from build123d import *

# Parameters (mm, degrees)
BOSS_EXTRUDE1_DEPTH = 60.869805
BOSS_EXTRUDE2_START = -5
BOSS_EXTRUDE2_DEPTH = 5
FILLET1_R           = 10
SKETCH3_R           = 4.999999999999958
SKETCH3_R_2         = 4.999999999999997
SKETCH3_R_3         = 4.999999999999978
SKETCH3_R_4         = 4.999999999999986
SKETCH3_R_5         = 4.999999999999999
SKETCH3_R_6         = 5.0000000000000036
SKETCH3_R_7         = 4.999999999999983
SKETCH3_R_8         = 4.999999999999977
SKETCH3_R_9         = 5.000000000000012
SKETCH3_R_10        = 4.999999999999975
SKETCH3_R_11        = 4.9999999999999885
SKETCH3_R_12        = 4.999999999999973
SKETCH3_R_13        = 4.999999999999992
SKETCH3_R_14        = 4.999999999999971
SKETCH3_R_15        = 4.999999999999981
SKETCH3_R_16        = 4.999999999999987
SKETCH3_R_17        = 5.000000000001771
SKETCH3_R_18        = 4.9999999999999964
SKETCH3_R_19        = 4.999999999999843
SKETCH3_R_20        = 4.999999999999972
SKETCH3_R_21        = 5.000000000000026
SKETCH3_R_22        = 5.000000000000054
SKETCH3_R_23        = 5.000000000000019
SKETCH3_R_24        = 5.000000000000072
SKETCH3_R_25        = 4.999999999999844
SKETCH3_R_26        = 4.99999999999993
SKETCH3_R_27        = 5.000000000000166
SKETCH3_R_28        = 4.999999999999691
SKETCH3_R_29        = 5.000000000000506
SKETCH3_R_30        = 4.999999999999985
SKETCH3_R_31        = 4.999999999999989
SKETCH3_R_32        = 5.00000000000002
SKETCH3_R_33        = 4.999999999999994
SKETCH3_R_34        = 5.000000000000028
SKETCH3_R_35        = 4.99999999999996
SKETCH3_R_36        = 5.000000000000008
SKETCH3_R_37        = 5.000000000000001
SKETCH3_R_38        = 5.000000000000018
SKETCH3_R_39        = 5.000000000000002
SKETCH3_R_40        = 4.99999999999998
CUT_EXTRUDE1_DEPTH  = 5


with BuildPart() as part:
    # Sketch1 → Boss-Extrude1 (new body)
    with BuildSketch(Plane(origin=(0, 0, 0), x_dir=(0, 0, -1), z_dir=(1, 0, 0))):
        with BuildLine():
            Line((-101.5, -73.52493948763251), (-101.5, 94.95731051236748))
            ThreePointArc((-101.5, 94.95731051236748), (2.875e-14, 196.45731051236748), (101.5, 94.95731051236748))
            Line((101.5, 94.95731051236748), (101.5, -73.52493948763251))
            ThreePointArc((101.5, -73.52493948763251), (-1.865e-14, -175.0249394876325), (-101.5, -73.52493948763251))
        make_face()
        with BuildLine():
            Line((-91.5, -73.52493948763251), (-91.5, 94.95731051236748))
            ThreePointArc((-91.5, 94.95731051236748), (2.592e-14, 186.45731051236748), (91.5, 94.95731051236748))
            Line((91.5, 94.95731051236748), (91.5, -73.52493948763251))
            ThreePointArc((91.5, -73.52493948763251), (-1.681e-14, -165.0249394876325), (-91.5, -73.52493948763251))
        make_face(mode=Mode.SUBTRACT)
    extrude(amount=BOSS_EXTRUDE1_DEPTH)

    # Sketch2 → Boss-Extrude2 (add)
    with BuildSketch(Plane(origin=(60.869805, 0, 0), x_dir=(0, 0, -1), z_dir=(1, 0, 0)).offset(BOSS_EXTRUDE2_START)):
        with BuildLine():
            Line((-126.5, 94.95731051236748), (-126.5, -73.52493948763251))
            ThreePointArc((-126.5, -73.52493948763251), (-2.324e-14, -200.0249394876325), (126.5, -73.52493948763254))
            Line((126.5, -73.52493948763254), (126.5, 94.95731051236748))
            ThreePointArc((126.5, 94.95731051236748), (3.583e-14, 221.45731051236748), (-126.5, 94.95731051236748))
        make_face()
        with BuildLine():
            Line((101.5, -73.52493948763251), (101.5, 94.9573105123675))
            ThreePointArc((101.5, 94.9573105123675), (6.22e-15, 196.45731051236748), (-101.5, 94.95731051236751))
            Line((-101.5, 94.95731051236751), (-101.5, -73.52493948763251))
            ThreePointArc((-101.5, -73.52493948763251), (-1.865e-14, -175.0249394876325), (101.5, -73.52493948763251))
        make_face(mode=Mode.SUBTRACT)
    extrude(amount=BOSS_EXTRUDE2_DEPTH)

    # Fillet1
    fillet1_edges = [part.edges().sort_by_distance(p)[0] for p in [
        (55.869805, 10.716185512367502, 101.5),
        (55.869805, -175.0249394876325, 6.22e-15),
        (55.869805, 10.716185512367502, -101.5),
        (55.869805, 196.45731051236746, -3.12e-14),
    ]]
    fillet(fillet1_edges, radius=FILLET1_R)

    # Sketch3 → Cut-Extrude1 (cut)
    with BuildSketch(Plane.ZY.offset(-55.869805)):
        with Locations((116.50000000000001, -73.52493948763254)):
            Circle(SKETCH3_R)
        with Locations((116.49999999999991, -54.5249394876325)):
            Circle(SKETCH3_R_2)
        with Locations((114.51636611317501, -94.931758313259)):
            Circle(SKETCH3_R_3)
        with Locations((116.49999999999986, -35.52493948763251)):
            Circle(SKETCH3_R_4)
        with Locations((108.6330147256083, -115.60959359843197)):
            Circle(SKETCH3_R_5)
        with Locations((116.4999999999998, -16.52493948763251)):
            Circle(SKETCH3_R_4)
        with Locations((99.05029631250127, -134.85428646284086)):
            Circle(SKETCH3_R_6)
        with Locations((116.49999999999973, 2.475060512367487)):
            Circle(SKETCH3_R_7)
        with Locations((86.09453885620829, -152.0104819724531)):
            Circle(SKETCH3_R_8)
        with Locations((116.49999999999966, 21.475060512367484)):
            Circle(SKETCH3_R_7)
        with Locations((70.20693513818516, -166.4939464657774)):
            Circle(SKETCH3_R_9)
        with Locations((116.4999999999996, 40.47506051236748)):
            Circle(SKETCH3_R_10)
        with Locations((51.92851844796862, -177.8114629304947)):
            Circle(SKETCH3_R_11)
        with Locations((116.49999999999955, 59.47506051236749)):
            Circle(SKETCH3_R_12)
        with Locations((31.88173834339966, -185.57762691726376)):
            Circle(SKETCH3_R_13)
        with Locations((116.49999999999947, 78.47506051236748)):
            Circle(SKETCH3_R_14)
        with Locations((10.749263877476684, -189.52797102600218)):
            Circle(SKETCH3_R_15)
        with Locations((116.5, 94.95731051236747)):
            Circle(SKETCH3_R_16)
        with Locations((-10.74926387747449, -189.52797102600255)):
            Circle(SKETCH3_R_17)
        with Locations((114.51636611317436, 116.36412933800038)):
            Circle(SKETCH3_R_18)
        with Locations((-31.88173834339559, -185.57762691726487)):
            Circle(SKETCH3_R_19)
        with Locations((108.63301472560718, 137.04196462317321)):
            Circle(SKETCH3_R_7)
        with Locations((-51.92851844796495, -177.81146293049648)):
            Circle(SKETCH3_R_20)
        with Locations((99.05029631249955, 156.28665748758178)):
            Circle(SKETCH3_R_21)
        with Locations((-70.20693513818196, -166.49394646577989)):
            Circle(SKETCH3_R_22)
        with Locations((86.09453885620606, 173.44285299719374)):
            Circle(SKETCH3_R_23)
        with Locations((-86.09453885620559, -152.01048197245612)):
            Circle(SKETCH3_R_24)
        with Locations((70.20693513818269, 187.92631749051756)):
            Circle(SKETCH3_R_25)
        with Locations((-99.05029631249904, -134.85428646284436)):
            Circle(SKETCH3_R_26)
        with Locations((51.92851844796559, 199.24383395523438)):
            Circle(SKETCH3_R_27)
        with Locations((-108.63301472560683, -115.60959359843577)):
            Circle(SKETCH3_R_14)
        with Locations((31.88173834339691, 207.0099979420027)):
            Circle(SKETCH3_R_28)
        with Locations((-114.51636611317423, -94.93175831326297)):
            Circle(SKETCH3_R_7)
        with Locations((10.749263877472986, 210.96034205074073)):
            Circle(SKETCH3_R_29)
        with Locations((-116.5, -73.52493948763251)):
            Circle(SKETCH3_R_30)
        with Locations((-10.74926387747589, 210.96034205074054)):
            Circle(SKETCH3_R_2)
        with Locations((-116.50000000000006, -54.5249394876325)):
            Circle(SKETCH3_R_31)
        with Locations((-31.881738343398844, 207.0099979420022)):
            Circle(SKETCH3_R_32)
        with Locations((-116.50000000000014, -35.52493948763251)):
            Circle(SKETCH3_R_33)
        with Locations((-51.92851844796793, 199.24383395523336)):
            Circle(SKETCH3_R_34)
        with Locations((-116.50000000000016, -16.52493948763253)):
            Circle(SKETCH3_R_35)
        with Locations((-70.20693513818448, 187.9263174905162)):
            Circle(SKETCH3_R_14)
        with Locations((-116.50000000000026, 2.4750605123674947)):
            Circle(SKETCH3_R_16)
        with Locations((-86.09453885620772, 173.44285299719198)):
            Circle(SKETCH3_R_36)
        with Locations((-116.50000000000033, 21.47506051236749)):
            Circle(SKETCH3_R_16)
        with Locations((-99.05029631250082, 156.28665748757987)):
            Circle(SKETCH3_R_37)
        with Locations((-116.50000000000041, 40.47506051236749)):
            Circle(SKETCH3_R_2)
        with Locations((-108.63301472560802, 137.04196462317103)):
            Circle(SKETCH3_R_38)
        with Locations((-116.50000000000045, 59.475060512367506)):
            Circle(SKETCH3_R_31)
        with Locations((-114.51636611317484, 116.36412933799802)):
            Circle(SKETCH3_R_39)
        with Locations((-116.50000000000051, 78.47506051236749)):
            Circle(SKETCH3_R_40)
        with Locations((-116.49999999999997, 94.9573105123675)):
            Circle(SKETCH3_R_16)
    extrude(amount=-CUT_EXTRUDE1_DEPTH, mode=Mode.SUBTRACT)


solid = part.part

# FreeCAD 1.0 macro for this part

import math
import FreeCAD as App
import Part
import Sketcher
Q = App.Units.Quantity


def edges_at(feature, points):
    """Names of the edges that pass closest to the given points."""
    edges = feature.Shape.Edges
    near = lambda p: min(range(len(edges)), key=lambda i: edges[i].distToShape(Part.Vertex(*p))[0])
    return sorted({f"Edge{near(p) + 1}" for p in points})

doc = App.newDocument("Part")
body = doc.addObject("PartDesign::Body", "Body")

# Sketch on YZ plane
sketch1 = body.newObject("Sketcher::SketchObject", "Sketch")
sketch1.AttachmentSupport = (doc.getObject("YZ_Plane"), [""])
sketch1.MapMode = "FlatFace"
sketch1.addGeometry([
    Part.LineSegment(App.Vector(94.957311, 101.5, 0), App.Vector(-73.524939, 101.5, 0)),  # 0
    Part.ArcOfCircle(Part.Circle(App.Vector(-73.524939, 0, 0), App.Vector(0, 0, 1), 101.5), math.radians(90), math.radians(270)),  # 1
    Part.LineSegment(App.Vector(-73.524939, -101.5, 0), App.Vector(94.957311, -101.5, 0)),  # 2
    Part.ArcOfCircle(Part.Circle(App.Vector(94.957311, 0, 0), App.Vector(0, 0, 1), 101.5), math.radians(-90), math.radians(90)),  # 3
    Part.LineSegment(App.Vector(-73.524939, 91.5, 0), App.Vector(94.957311, 91.5, 0)),  # 4
    Part.ArcOfCircle(Part.Circle(App.Vector(94.957311, 0, 0), App.Vector(0, 0, 1), 91.5), math.radians(-90), math.radians(90)),  # 5
    Part.LineSegment(App.Vector(94.957311, -91.5, 0), App.Vector(-73.524939, -91.5, 0)),  # 6
    Part.ArcOfCircle(Part.Circle(App.Vector(-73.524939, 0, 0), App.Vector(0, 0, 1), 91.5), math.radians(90), math.radians(270)),  # 7
], False)
sketch1.addConstraint([
    Sketcher.Constraint("Tangent", 0, 2, 1, 1),
    Sketcher.Constraint("Tangent", 1, 2, 2, 1),
    Sketcher.Constraint("Tangent", 2, 2, 3, 1),
    Sketcher.Constraint("Tangent", 3, 2, 0, 1),
    Sketcher.Constraint("Tangent", 4, 2, 5, 2),
    Sketcher.Constraint("Tangent", 5, 1, 6, 1),
    Sketcher.Constraint("Tangent", 6, 2, 7, 2),
    Sketcher.Constraint("Tangent", 7, 1, 4, 1),
    Sketcher.Constraint("Horizontal", 0),
    Sketcher.Constraint("Horizontal", 2),
    Sketcher.Constraint("Horizontal", 4),
    Sketcher.Constraint("Horizontal", 6),
    Sketcher.Constraint("Coincident", 5, 3, 3, 3),
    Sketcher.Constraint("PointOnObject", 1, 3, -1),
    Sketcher.Constraint("Vertical", 7, 3, 0, 2),
    Sketcher.Constraint("Radius", 1, Q("101.5 mm")),
    Sketcher.Constraint("Radius", 5, Q("91.5 mm")),
    Sketcher.Constraint("DistanceX", 0, 2, 0, 1, Q("168.48225 mm")),
    Sketcher.Constraint("DistanceX", 1, 3, -1, 1, Q("73.524939 mm")),
])
pad1 = body.newObject("PartDesign::Pad", "Pad")
pad1.Profile = sketch1
pad1.Length = 60.869805

# Sketch on YZ plane
sketch2 = body.newObject("Sketcher::SketchObject", "Sketch001")
sketch2.AttachmentSupport = (doc.getObject("YZ_Plane"), [""])
sketch2.MapMode = "FlatFace"
sketch2.AttachmentOffset = App.Placement(App.Vector(0, 0, 55.869805), App.Rotation())
sketch2.addGeometry([
    Part.LineSegment(App.Vector(94.957311, 126.5, 0), App.Vector(-73.524939, 126.5, 0)),  # 0
    Part.ArcOfCircle(Part.Circle(App.Vector(-73.524939, 0, 0), App.Vector(0, 0, 1), 126.5), math.radians(90), math.radians(270)),  # 1
    Part.LineSegment(App.Vector(-73.524939, -126.5, 0), App.Vector(94.957311, -126.5, 0)),  # 2
    Part.ArcOfCircle(Part.Circle(App.Vector(94.957311, 0, 0), App.Vector(0, 0, 1), 126.5), math.radians(-90), math.radians(90)),  # 3
    Part.LineSegment(App.Vector(94.957311, -101.5, 0), App.Vector(-73.524939, -101.5, 0)),  # 4
    Part.ArcOfCircle(Part.Circle(App.Vector(-73.524939, 0, 0), App.Vector(0, 0, 1), 101.5), math.radians(90), math.radians(270)),  # 5
    Part.LineSegment(App.Vector(-73.524939, 101.5, 0), App.Vector(94.957311, 101.5, 0)),  # 6
    Part.ArcOfCircle(Part.Circle(App.Vector(94.957311, 0, 0), App.Vector(0, 0, 1), 101.5), math.radians(-90), math.radians(90)),  # 7
], False)
sketch2.addConstraint([
    Sketcher.Constraint("Tangent", 0, 2, 1, 1),
    Sketcher.Constraint("Tangent", 1, 2, 2, 1),
    Sketcher.Constraint("Tangent", 2, 2, 3, 1),
    Sketcher.Constraint("Tangent", 3, 2, 0, 1),
    Sketcher.Constraint("Tangent", 4, 2, 5, 2),
    Sketcher.Constraint("Tangent", 5, 1, 6, 1),
    Sketcher.Constraint("Tangent", 6, 2, 7, 2),
    Sketcher.Constraint("Tangent", 7, 1, 4, 1),
    Sketcher.Constraint("Horizontal", 0),
    Sketcher.Constraint("Horizontal", 2),
    Sketcher.Constraint("Horizontal", 4),
    Sketcher.Constraint("Horizontal", 6),
    Sketcher.Constraint("Coincident", 5, 3, 1, 3),
    Sketcher.Constraint("PointOnObject", 1, 3, -1),
    Sketcher.Constraint("Vertical", 7, 3, 2, 2),
    Sketcher.Constraint("Radius", 1, Q("126.5 mm")),
    Sketcher.Constraint("Radius", 5, Q("101.5 mm")),
    Sketcher.Constraint("DistanceX", 0, 2, 0, 1, Q("168.48225 mm")),
    Sketcher.Constraint("DistanceX", 1, 3, -1, 1, Q("73.524939 mm")),
])
pad2 = body.newObject("PartDesign::Pad", "Pad001")
pad2.Profile = sketch2
pad2.Length = 5
doc.recompute()

fillet = body.newObject("PartDesign::Fillet", "Fillet")
fillet.Base = (pad2, edges_at(pad2, [
    (55.87, 10.716, 101.5),
    (55.87, -175.025, 0),
    (55.87, 10.716, -101.5),
    (55.87, 196.457, 0),
]))
fillet.Radius = 10

# Sketch on YZ plane
sketch3 = body.newObject("Sketcher::SketchObject", "Sketch002")
sketch3.AttachmentSupport = (doc.getObject("YZ_Plane"), [""])
sketch3.MapMode = "FlatFace"
sketch3.AttachmentOffset = App.Placement(App.Vector(0, 0, 55.869805), App.Rotation())
sketch3.addGeometry([
    Part.Circle(App.Vector(-73.524939, 116.5, 0), App.Vector(0, 0, 1), 5),  # 0
    Part.Circle(App.Vector(-54.524939, 116.5, 0), App.Vector(0, 0, 1), 5),  # 1
    Part.Circle(App.Vector(-94.931758, 114.516366, 0), App.Vector(0, 0, 1), 5),  # 2
    Part.Circle(App.Vector(-35.524939, 116.5, 0), App.Vector(0, 0, 1), 5),  # 3
    Part.Circle(App.Vector(-115.609594, 108.633015, 0), App.Vector(0, 0, 1), 5),  # 4
    Part.Circle(App.Vector(-16.524939, 116.5, 0), App.Vector(0, 0, 1), 5),  # 5
    Part.Circle(App.Vector(-134.854286, 99.050296, 0), App.Vector(0, 0, 1), 5),  # 6
    Part.Circle(App.Vector(2.475061, 116.5, 0), App.Vector(0, 0, 1), 5),  # 7
    Part.Circle(App.Vector(-152.010482, 86.094539, 0), App.Vector(0, 0, 1), 5),  # 8
    Part.Circle(App.Vector(21.475061, 116.5, 0), App.Vector(0, 0, 1), 5),  # 9
    Part.Circle(App.Vector(-166.493946, 70.206935, 0), App.Vector(0, 0, 1), 5),  # 10
    Part.Circle(App.Vector(40.475061, 116.5, 0), App.Vector(0, 0, 1), 5),  # 11
    Part.Circle(App.Vector(-177.811463, 51.928518, 0), App.Vector(0, 0, 1), 5),  # 12
    Part.Circle(App.Vector(59.475061, 116.5, 0), App.Vector(0, 0, 1), 5),  # 13
    Part.Circle(App.Vector(-185.577627, 31.881738, 0), App.Vector(0, 0, 1), 5),  # 14
    Part.Circle(App.Vector(78.475061, 116.5, 0), App.Vector(0, 0, 1), 5),  # 15
    Part.Circle(App.Vector(-189.527971, 10.749264, 0), App.Vector(0, 0, 1), 5),  # 16
    Part.Circle(App.Vector(94.957311, 116.5, 0), App.Vector(0, 0, 1), 5),  # 17
    Part.Circle(App.Vector(-189.527971, -10.749264, 0), App.Vector(0, 0, 1), 5),  # 18
    Part.Circle(App.Vector(116.364129, 114.516366, 0), App.Vector(0, 0, 1), 5),  # 19
    Part.Circle(App.Vector(-185.577627, -31.881738, 0), App.Vector(0, 0, 1), 5),  # 20
    Part.Circle(App.Vector(137.041965, 108.633015, 0), App.Vector(0, 0, 1), 5),  # 21
    Part.Circle(App.Vector(-177.811463, -51.928518, 0), App.Vector(0, 0, 1), 5),  # 22
    Part.Circle(App.Vector(156.286657, 99.050296, 0), App.Vector(0, 0, 1), 5),  # 23
    Part.Circle(App.Vector(-166.493946, -70.206935, 0), App.Vector(0, 0, 1), 5),  # 24
    Part.Circle(App.Vector(173.442853, 86.094539, 0), App.Vector(0, 0, 1), 5),  # 25
    Part.Circle(App.Vector(-152.010482, -86.094539, 0), App.Vector(0, 0, 1), 5),  # 26
    Part.Circle(App.Vector(187.926317, 70.206935, 0), App.Vector(0, 0, 1), 5),  # 27
    Part.Circle(App.Vector(-134.854286, -99.050296, 0), App.Vector(0, 0, 1), 5),  # 28
    Part.Circle(App.Vector(199.243834, 51.928518, 0), App.Vector(0, 0, 1), 5),  # 29
    Part.Circle(App.Vector(-115.609594, -108.633015, 0), App.Vector(0, 0, 1), 5),  # 30
    Part.Circle(App.Vector(207.009998, 31.881738, 0), App.Vector(0, 0, 1), 5),  # 31
    Part.Circle(App.Vector(-94.931758, -114.516366, 0), App.Vector(0, 0, 1), 5),  # 32
    Part.Circle(App.Vector(210.960342, 10.749264, 0), App.Vector(0, 0, 1), 5),  # 33
    Part.Circle(App.Vector(-73.524939, -116.5, 0), App.Vector(0, 0, 1), 5),  # 34
    Part.Circle(App.Vector(210.960342, -10.749264, 0), App.Vector(0, 0, 1), 5),  # 35
    Part.Circle(App.Vector(-54.524939, -116.5, 0), App.Vector(0, 0, 1), 5),  # 36
    Part.Circle(App.Vector(207.009998, -31.881738, 0), App.Vector(0, 0, 1), 5),  # 37
    Part.Circle(App.Vector(-35.524939, -116.5, 0), App.Vector(0, 0, 1), 5),  # 38
    Part.Circle(App.Vector(199.243834, -51.928518, 0), App.Vector(0, 0, 1), 5),  # 39
    Part.Circle(App.Vector(-16.524939, -116.5, 0), App.Vector(0, 0, 1), 5),  # 40
    Part.Circle(App.Vector(187.926317, -70.206935, 0), App.Vector(0, 0, 1), 5),  # 41
    Part.Circle(App.Vector(2.475061, -116.5, 0), App.Vector(0, 0, 1), 5),  # 42
    Part.Circle(App.Vector(173.442853, -86.094539, 0), App.Vector(0, 0, 1), 5),  # 43
    Part.Circle(App.Vector(21.475061, -116.5, 0), App.Vector(0, 0, 1), 5),  # 44
    Part.Circle(App.Vector(156.286657, -99.050296, 0), App.Vector(0, 0, 1), 5),  # 45
    Part.Circle(App.Vector(40.475061, -116.5, 0), App.Vector(0, 0, 1), 5),  # 46
    Part.Circle(App.Vector(137.041965, -108.633015, 0), App.Vector(0, 0, 1), 5),  # 47
    Part.Circle(App.Vector(59.475061, -116.5, 0), App.Vector(0, 0, 1), 5),  # 48
    Part.Circle(App.Vector(116.364129, -114.516366, 0), App.Vector(0, 0, 1), 5),  # 49
    Part.Circle(App.Vector(78.475061, -116.5, 0), App.Vector(0, 0, 1), 5),  # 50
    Part.Circle(App.Vector(94.957311, -116.5, 0), App.Vector(0, 0, 1), 5),  # 51
], False)
sketch3.addConstraint([
    Sketcher.Constraint("Equal", 0, 1),
    Sketcher.Constraint("Equal", 1, 2),
    Sketcher.Constraint("Equal", 2, 3),
    Sketcher.Constraint("Equal", 3, 4),
    Sketcher.Constraint("Equal", 4, 5),
    Sketcher.Constraint("Equal", 5, 6),
    Sketcher.Constraint("Equal", 6, 7),
    Sketcher.Constraint("Equal", 7, 8),
    Sketcher.Constraint("Equal", 8, 9),
    Sketcher.Constraint("Equal", 9, 10),
    Sketcher.Constraint("Equal", 10, 11),
    Sketcher.Constraint("Equal", 11, 12),
    Sketcher.Constraint("Equal", 12, 13),
    Sketcher.Constraint("Equal", 13, 14),
    Sketcher.Constraint("Equal", 14, 15),
    Sketcher.Constraint("Equal", 15, 16),
    Sketcher.Constraint("Equal", 16, 17),
    Sketcher.Constraint("Equal", 17, 18),
    Sketcher.Constraint("Equal", 18, 19),
    Sketcher.Constraint("Equal", 19, 20),
    Sketcher.Constraint("Equal", 20, 21),
    Sketcher.Constraint("Equal", 21, 22),
    Sketcher.Constraint("Equal", 22, 23),
    Sketcher.Constraint("Equal", 23, 24),
    Sketcher.Constraint("Equal", 24, 25),
    Sketcher.Constraint("Equal", 25, 26),
    Sketcher.Constraint("Equal", 26, 27),
    Sketcher.Constraint("Equal", 27, 28),
    Sketcher.Constraint("Equal", 28, 29),
    Sketcher.Constraint("Equal", 29, 30),
    Sketcher.Constraint("Equal", 30, 31),
    Sketcher.Constraint("Equal", 31, 32),
    Sketcher.Constraint("Equal", 32, 33),
    Sketcher.Constraint("Equal", 33, 34),
    Sketcher.Constraint("Equal", 34, 35),
    Sketcher.Constraint("Equal", 35, 36),
    Sketcher.Constraint("Equal", 36, 37),
    Sketcher.Constraint("Equal", 37, 38),
    Sketcher.Constraint("Equal", 38, 39),
    Sketcher.Constraint("Equal", 39, 40),
    Sketcher.Constraint("Equal", 40, 41),
    Sketcher.Constraint("Equal", 41, 42),
    Sketcher.Constraint("Equal", 42, 43),
    Sketcher.Constraint("Equal", 43, 44),
    Sketcher.Constraint("Equal", 44, 45),
    Sketcher.Constraint("Equal", 45, 46),
    Sketcher.Constraint("Equal", 46, 47),
    Sketcher.Constraint("Equal", 47, 48),
    Sketcher.Constraint("Equal", 48, 49),
    Sketcher.Constraint("Equal", 49, 50),
    Sketcher.Constraint("Equal", 50, 51),
    Sketcher.Constraint("Symmetric", 16, 3, 18, 3, -1),
    Sketcher.Constraint("Symmetric", 14, 3, 20, 3, -1),
    Sketcher.Constraint("Symmetric", 12, 3, 22, 3, -1),
    Sketcher.Constraint("Symmetric", 10, 3, 24, 3, -1),
    Sketcher.Constraint("Symmetric", 8, 3, 26, 3, -1),
    Sketcher.Constraint("Symmetric", 6, 3, 28, 3, -1),
    Sketcher.Constraint("Symmetric", 4, 3, 30, 3, -1),
    Sketcher.Constraint("Symmetric", 2, 3, 32, 3, -1),
    Sketcher.Constraint("Symmetric", 0, 3, 34, 3, -1),
    Sketcher.Constraint("Symmetric", 33, 3, 35, 3, -1),
    Sketcher.Constraint("Symmetric", 1, 3, 36, 3, -1),
    Sketcher.Constraint("Symmetric", 31, 3, 37, 3, -1),
    Sketcher.Constraint("Symmetric", 3, 3, 38, 3, -1),
    Sketcher.Constraint("Symmetric", 29, 3, 39, 3, -1),
    Sketcher.Constraint("Symmetric", 5, 3, 40, 3, -1),
    Sketcher.Constraint("Symmetric", 27, 3, 41, 3, -1),
    Sketcher.Constraint("Symmetric", 7, 3, 42, 3, -1),
    Sketcher.Constraint("Symmetric", 25, 3, 43, 3, -1),
    Sketcher.Constraint("Symmetric", 9, 3, 44, 3, -1),
    Sketcher.Constraint("Symmetric", 23, 3, 45, 3, -1),
    Sketcher.Constraint("Symmetric", 11, 3, 46, 3, -1),
    Sketcher.Constraint("Symmetric", 21, 3, 47, 3, -1),
    Sketcher.Constraint("Symmetric", 13, 3, 48, 3, -1),
    Sketcher.Constraint("Symmetric", 19, 3, 49, 3, -1),
    Sketcher.Constraint("Symmetric", 15, 3, 50, 3, -1),
    Sketcher.Constraint("Symmetric", 17, 3, 51, 3, -1),
    Sketcher.Constraint("Horizontal", 0, 3, 1, 3),
    Sketcher.Constraint("Horizontal", 1, 3, 3, 3),
    Sketcher.Constraint("Horizontal", 3, 3, 5, 3),
    Sketcher.Constraint("Horizontal", 5, 3, 7, 3),
    Sketcher.Constraint("Horizontal", 7, 3, 9, 3),
    Sketcher.Constraint("Horizontal", 9, 3, 11, 3),
    Sketcher.Constraint("Horizontal", 11, 3, 13, 3),
    Sketcher.Constraint("Horizontal", 13, 3, 15, 3),
    Sketcher.Constraint("Horizontal", 15, 3, 17, 3),
    Sketcher.Constraint("Horizontal", 2, 3, 19, 3),
    Sketcher.Constraint("Horizontal", 4, 3, 21, 3),
    Sketcher.Constraint("Horizontal", 6, 3, 23, 3),
    Sketcher.Constraint("Horizontal", 8, 3, 25, 3),
    Sketcher.Constraint("Horizontal", 10, 3, 27, 3),
    Sketcher.Constraint("Horizontal", 12, 3, 29, 3),
    Sketcher.Constraint("Horizontal", 14, 3, 31, 3),
    Sketcher.Constraint("Horizontal", 16, 3, 33, 3),
    Sketcher.Constraint("Diameter", 0, Q("10 mm")),
    Sketcher.Constraint("DistanceX", 0, 3, 1, 3, Q("19 mm")),
    Sketcher.Constraint("DistanceX", 1, 3, 3, 3, Q("19 mm")),
    Sketcher.Constraint("DistanceX", 3, 3, 5, 3, Q("19 mm")),
    Sketcher.Constraint("DistanceX", 5, 3, 7, 3, Q("19 mm")),
    Sketcher.Constraint("DistanceX", 7, 3, 9, 3, Q("19 mm")),
    Sketcher.Constraint("DistanceX", 9, 3, 11, 3, Q("19 mm")),
    Sketcher.Constraint("DistanceX", 11, 3, 13, 3, Q("19 mm")),
    Sketcher.Constraint("DistanceX", 13, 3, 15, 3, Q("19 mm")),
    Sketcher.Constraint("DistanceY", -1, 1, 0, 3, Q("116.5 mm")),
    Sketcher.Constraint("DistanceY", 14, 3, 8, 3, Q("54.212801 mm")),
    Sketcher.Constraint("DistanceY", 18, 3, 10, 3, Q("80.956199 mm")),
    Sketcher.Constraint("DistanceX", 0, 3, -1, 1, Q("73.524939 mm")),
    Sketcher.Constraint("DistanceX", 2, 3, -1, 1, Q("94.931758 mm")),
    Sketcher.Constraint("DistanceX", 8, 3, -1, 1, Q("152.010482 mm")),
    Sketcher.Constraint("DistanceY", -1, 1, 8, 3, Q("86.094539 mm")),
    Sketcher.Constraint("DistanceY", -1, 1, 12, 3, Q("51.928518 mm")),
    Sketcher.Constraint("DistanceX", 16, 3, -1, 1, Q("189.527971 mm")),
    Sketcher.Constraint("DistanceX", -1, 1, 17, 3, Q("94.957311 mm")),
    Sketcher.Constraint("DistanceX", -1, 1, 19, 3, Q("116.364129 mm")),
    Sketcher.Constraint("DistanceY", 4, 3, 2, 3, Q("5.883351 mm")),
    Sketcher.Constraint("DistanceY", 6, 3, 4, 3, Q("9.582718 mm")),
    Sketcher.Constraint("DistanceX", 6, 3, 2, 3, Q("39.922528 mm")),
    Sketcher.Constraint("DistanceX", 8, 3, 4, 3, Q("36.400888 mm")),
    Sketcher.Constraint("DistanceX", 10, 3, 6, 3, Q("31.63966 mm")),
    Sketcher.Constraint("DistanceY", 10, 3, 6, 3, Q("28.843361 mm")),
    Sketcher.Constraint("DistanceX", 12, 3, 8, 3, Q("25.800981 mm")),
    Sketcher.Constraint("DistanceX", 14, 3, 10, 3, Q("19.08368 mm")),
    Sketcher.Constraint("DistanceY", 16, 3, 10, 3, Q("59.457671 mm")),
    Sketcher.Constraint("DistanceX", 19, 3, 23, 3, Q("39.922528 mm")),
    Sketcher.Constraint("DistanceX", 21, 3, 25, 3, Q("36.400888 mm")),
    Sketcher.Constraint("DistanceX", 23, 3, 27, 3, Q("31.63966 mm")),
    Sketcher.Constraint("DistanceX", 25, 3, 29, 3, Q("25.800981 mm")),
    Sketcher.Constraint("DistanceX", 27, 3, 31, 3, Q("19.08368 mm")),
    Sketcher.Constraint("DistanceX", 29, 3, 33, 3, Q("11.716508 mm")),
    Sketcher.Constraint("DistanceX", -1, 1, 21, 3, Q("137.041965 mm")),
])
pocket1 = body.newObject("PartDesign::Pocket", "Pocket")
pocket1.Profile = sketch3
pocket1.Length = 5
pocket1.Reversed = True

doc.recompute()
